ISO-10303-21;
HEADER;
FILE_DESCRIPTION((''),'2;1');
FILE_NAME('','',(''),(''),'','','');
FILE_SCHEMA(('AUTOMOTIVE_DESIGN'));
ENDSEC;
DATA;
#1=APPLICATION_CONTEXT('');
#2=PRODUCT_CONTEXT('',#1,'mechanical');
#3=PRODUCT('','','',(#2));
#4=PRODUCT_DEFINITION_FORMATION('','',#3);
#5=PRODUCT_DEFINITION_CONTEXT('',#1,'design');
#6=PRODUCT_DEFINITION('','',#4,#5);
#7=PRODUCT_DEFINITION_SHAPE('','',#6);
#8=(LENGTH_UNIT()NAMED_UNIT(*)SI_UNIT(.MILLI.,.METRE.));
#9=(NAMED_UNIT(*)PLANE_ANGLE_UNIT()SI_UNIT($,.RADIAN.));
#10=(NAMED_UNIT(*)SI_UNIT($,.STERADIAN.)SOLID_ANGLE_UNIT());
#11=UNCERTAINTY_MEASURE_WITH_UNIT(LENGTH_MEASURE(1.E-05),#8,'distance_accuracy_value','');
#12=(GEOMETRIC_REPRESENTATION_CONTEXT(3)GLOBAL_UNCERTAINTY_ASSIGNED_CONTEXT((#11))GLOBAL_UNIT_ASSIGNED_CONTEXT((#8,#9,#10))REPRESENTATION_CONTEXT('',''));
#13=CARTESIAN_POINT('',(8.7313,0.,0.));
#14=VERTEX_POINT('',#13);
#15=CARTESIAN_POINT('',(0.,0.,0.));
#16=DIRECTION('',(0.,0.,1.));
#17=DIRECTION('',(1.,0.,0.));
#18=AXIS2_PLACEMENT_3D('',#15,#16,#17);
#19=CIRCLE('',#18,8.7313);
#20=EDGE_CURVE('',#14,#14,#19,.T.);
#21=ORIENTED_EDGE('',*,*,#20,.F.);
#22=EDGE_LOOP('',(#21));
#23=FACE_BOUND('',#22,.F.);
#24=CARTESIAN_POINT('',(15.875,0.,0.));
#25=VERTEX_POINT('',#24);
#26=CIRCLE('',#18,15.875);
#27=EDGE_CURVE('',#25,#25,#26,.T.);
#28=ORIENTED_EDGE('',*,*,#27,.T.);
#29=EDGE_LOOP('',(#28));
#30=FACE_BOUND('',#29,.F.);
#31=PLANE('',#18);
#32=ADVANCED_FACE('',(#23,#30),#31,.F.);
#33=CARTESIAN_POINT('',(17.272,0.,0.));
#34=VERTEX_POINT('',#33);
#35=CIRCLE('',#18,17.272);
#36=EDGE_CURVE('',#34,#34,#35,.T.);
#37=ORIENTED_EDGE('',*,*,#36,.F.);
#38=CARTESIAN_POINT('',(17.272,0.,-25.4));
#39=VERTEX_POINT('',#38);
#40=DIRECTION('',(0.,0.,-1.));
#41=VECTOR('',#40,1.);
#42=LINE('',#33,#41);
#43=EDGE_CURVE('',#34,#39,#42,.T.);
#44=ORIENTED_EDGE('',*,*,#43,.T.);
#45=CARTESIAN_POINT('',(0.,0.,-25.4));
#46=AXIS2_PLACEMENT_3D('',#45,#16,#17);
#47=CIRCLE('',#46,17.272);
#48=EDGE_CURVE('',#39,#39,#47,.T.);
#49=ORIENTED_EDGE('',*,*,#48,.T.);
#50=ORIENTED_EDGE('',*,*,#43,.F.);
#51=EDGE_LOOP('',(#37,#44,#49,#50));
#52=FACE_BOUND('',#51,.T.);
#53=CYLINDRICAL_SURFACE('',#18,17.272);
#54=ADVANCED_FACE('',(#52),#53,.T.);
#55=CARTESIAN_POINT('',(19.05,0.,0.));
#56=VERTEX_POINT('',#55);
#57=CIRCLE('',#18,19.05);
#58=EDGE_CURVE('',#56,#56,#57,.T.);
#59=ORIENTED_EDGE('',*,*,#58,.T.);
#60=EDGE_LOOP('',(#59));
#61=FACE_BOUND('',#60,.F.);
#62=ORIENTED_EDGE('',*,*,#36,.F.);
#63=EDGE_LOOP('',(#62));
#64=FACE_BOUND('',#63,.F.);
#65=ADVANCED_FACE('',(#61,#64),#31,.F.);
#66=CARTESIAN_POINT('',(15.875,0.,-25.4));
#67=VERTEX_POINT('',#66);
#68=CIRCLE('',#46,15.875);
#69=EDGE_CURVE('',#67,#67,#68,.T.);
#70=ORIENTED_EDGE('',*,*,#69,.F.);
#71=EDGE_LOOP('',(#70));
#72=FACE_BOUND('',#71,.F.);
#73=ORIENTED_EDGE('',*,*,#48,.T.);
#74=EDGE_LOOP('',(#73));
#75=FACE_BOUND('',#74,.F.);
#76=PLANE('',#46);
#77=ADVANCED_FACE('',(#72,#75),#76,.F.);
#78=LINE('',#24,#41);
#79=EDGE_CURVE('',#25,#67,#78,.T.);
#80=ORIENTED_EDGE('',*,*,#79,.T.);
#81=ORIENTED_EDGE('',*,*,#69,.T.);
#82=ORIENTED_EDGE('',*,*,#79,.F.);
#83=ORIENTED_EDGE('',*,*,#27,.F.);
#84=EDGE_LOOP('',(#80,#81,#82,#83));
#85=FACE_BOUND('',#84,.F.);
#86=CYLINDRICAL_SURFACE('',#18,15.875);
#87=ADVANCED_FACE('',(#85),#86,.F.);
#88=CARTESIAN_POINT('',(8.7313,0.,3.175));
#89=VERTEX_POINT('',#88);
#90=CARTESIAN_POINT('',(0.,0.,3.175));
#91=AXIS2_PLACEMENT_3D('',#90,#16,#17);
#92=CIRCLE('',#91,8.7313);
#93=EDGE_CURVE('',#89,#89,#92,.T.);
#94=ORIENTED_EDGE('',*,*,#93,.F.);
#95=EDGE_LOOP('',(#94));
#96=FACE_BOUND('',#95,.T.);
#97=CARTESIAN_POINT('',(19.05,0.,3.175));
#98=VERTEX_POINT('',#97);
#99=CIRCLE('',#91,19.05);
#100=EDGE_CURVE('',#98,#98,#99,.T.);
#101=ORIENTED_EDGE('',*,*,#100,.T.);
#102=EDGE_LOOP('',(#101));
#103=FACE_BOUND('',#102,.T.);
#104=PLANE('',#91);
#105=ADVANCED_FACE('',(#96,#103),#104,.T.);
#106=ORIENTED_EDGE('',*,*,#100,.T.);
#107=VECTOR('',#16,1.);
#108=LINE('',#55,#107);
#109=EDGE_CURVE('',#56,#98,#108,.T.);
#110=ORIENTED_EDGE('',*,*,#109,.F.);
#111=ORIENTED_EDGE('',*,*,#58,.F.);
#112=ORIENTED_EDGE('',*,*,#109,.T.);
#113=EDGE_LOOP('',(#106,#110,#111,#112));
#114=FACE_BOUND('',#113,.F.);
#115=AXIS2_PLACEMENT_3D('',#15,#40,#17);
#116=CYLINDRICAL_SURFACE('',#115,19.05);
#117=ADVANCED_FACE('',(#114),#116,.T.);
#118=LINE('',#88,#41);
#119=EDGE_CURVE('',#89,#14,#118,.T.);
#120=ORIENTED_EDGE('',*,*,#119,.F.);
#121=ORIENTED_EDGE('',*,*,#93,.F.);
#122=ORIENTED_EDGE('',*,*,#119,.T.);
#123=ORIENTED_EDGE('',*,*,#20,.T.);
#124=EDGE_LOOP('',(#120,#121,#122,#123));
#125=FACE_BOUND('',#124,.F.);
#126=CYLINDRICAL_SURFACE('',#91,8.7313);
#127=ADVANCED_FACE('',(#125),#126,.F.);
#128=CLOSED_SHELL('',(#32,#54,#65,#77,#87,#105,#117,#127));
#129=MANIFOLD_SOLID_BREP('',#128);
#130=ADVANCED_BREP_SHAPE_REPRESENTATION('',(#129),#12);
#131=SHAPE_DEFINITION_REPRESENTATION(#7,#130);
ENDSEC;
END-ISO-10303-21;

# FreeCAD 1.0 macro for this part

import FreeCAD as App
import Part
import Sketcher
Q = App.Units.Quantity

doc = App.newDocument("Part")
body = doc.addObject("PartDesign::Body", "Body")

# Sketch on XY plane
sketch1 = body.newObject("Sketcher::SketchObject", "Sketch")
sketch1.AttachmentSupport = (doc.getObject("XY_Plane"), [""])
sketch1.MapMode = "FlatFace"
sketch1.addGeometry(Part.Circle(App.Vector(0, 0, 0), App.Vector(0, 0, 1), 19.05), False)
sketch1.addConstraint(Sketcher.Constraint("Coincident", 0, 3, -1, 1))
sketch1.addConstraint(Sketcher.Constraint("Diameter", 0, Q("1.5 in")))
pad1 = body.newObject("PartDesign::Pad", "Pad")
pad1.Profile = sketch1
pad1.Length = Q("0.125 in")

# Sketch on XY plane
sketch2 = body.newObject("Sketcher::SketchObject", "Sketch001")
sketch2.AttachmentSupport = (doc.getObject("XY_Plane"), [""])
sketch2.MapMode = "FlatFace"
sketch2.addGeometry(Part.Circle(App.Vector(0, 0, 0), App.Vector(0, 0, 1), 17.272), False)
sketch2.addGeometry(Part.Circle(App.Vector(0, 0, 0), App.Vector(0, 0, 1), 15.875), False)
sketch2.addConstraint(Sketcher.Constraint("Coincident", 0, 3, -1, 1))
sketch2.addConstraint(Sketcher.Constraint("Coincident", 1, 3, -1, 1))
sketch2.addConstraint(Sketcher.Constraint("Diameter", 0, Q("1.36 in")))
sketch2.addConstraint(Sketcher.Constraint("Diameter", 1, Q("1.25 in")))
pad2 = body.newObject("PartDesign::Pad", "Pad001")
pad2.Profile = sketch2
pad2.Length = Q("1 in")
pad2.Reversed = True

# Sketch on XY plane
sketch3 = body.newObject("Sketcher::SketchObject", "Sketch002")
sketch3.AttachmentSupport = (doc.getObject("XY_Plane"), [""])
sketch3.MapMode = "FlatFace"
sketch3.AttachmentOffset = App.Placement(App.Vector(0, 0, 0.125 * 25.4), App.Rotation())
sketch3.addGeometry(Part.Circle(App.Vector(0, 0, 0), App.Vector(0, 0, 1), 8.7313), False)
sketch3.addConstraint(Sketcher.Constraint("Coincident", 0, 3, -1, 1))
sketch3.addConstraint(Sketcher.Constraint("Diameter", 0, Q("0.6875 in")))
pocket1 = body.newObject("PartDesign::Pocket", "Pocket")
pocket1.Profile = sketch3
pocket1.Length = Q("1 in")

doc.recompute()
